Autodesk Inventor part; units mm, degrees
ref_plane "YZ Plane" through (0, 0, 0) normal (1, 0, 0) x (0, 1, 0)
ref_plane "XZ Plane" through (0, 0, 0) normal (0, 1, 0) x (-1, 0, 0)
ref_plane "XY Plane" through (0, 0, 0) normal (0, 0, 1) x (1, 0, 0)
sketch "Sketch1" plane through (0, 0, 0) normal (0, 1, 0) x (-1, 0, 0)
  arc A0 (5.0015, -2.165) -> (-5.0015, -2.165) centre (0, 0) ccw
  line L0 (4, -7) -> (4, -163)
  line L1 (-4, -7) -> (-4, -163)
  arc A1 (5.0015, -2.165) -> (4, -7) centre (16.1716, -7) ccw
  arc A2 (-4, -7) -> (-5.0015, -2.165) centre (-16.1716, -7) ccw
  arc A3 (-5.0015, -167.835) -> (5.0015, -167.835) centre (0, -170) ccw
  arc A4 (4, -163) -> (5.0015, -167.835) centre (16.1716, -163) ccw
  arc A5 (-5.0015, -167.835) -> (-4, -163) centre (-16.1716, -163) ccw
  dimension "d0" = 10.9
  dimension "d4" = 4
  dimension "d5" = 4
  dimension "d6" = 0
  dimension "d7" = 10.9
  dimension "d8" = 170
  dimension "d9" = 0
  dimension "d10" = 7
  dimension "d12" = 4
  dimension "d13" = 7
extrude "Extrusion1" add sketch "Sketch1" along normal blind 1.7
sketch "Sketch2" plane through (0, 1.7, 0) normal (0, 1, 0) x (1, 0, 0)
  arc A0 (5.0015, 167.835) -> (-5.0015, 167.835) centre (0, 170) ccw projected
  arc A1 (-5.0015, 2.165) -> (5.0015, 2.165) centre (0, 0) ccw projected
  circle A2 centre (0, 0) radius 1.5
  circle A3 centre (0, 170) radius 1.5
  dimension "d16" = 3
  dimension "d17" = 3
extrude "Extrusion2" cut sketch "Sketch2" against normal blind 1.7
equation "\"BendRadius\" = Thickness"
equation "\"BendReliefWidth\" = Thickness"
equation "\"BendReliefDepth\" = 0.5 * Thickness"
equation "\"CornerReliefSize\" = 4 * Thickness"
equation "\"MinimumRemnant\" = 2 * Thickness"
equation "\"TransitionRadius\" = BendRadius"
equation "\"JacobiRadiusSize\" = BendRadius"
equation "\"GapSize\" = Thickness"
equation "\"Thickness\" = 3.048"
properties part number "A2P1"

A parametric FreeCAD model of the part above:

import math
import FreeCAD as App
import Part
import Sketcher

doc = App.newDocument("Part")
body = doc.addObject("PartDesign::Body", "Body")

sketch1 = doc.addObject("Sketcher::SketchObject", "Sketch")
body.addObject(sketch1)
sketch1.AttachmentSupport = (doc.XZ_Plane, [""])
sketch1.MapMode = "FlatFace"
sketch1.addGeometry(Part.ArcOfCircle(Part.Circle(App.Vector(-16.1716, -7, 0), App.Vector(0, 0, 1), 12.171621), math.radians(0), math.radians(23.40547)), False)
sketch1.addGeometry(Part.ArcOfCircle(Part.Circle(App.Vector(0, 0, 0), App.Vector(0, 0, 1), 5.449975), math.radians(-23.406346), math.radians(203.406346)), False)
sketch1.addGeometry(Part.ArcOfCircle(Part.Circle(App.Vector(16.1716, -7, 0), App.Vector(0, 0, 1), 12.1716), math.radians(156.59453), math.radians(180)), False)
sketch1.addGeometry(Part.LineSegment(App.Vector(4, -7, 0), App.Vector(4, -163, 0)), False)
sketch1.addGeometry(Part.ArcOfCircle(Part.Circle(App.Vector(16.1716, -163, 0), App.Vector(0, 0, 1), 12.171621), math.radians(180), math.radians(203.40547)), False)
sketch1.addGeometry(Part.ArcOfCircle(Part.Circle(App.Vector(0, -170, 0), App.Vector(0, 0, 1), 5.449975), math.radians(156.593654), math.radians(383.406346)), False)
sketch1.addGeometry(Part.ArcOfCircle(Part.Circle(App.Vector(-16.1716, -163, 0), App.Vector(0, 0, 1), 12.1716), math.radians(-23.40547), math.radians(0)), False)
sketch1.addGeometry(Part.LineSegment(App.Vector(-4, -163, 0), App.Vector(-4, -7, 0)), False)
sketch1.addConstraint(Sketcher.Constraint("Tangent", 0, 2, 1, 2))
sketch1.addConstraint(Sketcher.Constraint("Tangent", 1, 1, 2, 1))
sketch1.addConstraint(Sketcher.Constraint("Tangent", 2, 2, 3, 1))
sketch1.addConstraint(Sketcher.Constraint("Tangent", 3, 2, 4, 1))
sketch1.addConstraint(Sketcher.Constraint("Tangent", 4, 2, 5, 2))
sketch1.addConstraint(Sketcher.Constraint("Tangent", 5, 1, 6, 1))
sketch1.addConstraint(Sketcher.Constraint("Tangent", 6, 2, 7, 1))
sketch1.addConstraint(Sketcher.Constraint("Tangent", 7, 2, 0, 1))
sketch1.addConstraint(Sketcher.Constraint("Vertical", 3))
sketch1.addConstraint(Sketcher.Constraint("Vertical", 7))
sketch1.addConstraint(Sketcher.Constraint("Coincident", 1, 3, -1, 1))
sketch1.addConstraint(Sketcher.Constraint("Equal", 0, 2))
sketch1.addConstraint(Sketcher.Constraint("Equal", 2, 4))
sketch1.addConstraint(Sketcher.Constraint("Equal", 1, 5))
sketch1.addConstraint(Sketcher.Constraint("Equal", 4, 6))
sketch1.addConstraint(Sketcher.Constraint("Symmetric", 4, 3, 6, 3, -2))
sketch1.addConstraint(Sketcher.Constraint("Radius", 1, 5.45))
sketch1.addConstraint(Sketcher.Constraint("DistanceY", 0, 3, -1, 1, 7.0))
sketch1.addConstraint(Sketcher.Constraint("DistanceY", 5, 3, -1, 1, 170.0))
sketch1.addConstraint(Sketcher.Constraint("DistanceX", -1, 1, 2, 2, 4.0))
pad1 = doc.addObject("PartDesign::Pad", "Pad")
body.addObject(pad1)
pad1.Profile = sketch1
pad1.Length = 1.7
pad1.Reversed = True

sketch2 = doc.addObject("Sketcher::SketchObject", "Sketch001")
body.addObject(sketch2)
sketch2.AttachmentSupport = (doc.XZ_Plane, [""])
sketch2.MapMode = "FlatFace"
sketch2.AttachmentOffset = App.Placement(App.Vector(0, 0, -1.7), App.Rotation())
sketch2.addGeometry(Part.Circle(App.Vector(0, 0, 0), App.Vector(0, 0, 1), 1.5), False)
sketch2.addGeometry(Part.Circle(App.Vector(0, -170, 0), App.Vector(0, 0, 1), 1.5), False)
sketch2.addConstraint(Sketcher.Constraint("Coincident", 0, 3, -1, 1))
sketch2.addConstraint(Sketcher.Constraint("Equal", 0, 1))
sketch2.addConstraint(Sketcher.Constraint("PointOnObject", 1, 3, -2))
sketch2.addConstraint(Sketcher.Constraint("Diameter", 0, 3.0))
sketch2.addConstraint(Sketcher.Constraint("DistanceY", 1, 3, -1, 1, 170.0))
pocket1 = doc.addObject("PartDesign::Pocket", "Pocket")
body.addObject(pocket1)
pocket1.Profile = sketch2
pocket1.Length = 1.7
pocket1.Reversed = True

doc.recompute()
